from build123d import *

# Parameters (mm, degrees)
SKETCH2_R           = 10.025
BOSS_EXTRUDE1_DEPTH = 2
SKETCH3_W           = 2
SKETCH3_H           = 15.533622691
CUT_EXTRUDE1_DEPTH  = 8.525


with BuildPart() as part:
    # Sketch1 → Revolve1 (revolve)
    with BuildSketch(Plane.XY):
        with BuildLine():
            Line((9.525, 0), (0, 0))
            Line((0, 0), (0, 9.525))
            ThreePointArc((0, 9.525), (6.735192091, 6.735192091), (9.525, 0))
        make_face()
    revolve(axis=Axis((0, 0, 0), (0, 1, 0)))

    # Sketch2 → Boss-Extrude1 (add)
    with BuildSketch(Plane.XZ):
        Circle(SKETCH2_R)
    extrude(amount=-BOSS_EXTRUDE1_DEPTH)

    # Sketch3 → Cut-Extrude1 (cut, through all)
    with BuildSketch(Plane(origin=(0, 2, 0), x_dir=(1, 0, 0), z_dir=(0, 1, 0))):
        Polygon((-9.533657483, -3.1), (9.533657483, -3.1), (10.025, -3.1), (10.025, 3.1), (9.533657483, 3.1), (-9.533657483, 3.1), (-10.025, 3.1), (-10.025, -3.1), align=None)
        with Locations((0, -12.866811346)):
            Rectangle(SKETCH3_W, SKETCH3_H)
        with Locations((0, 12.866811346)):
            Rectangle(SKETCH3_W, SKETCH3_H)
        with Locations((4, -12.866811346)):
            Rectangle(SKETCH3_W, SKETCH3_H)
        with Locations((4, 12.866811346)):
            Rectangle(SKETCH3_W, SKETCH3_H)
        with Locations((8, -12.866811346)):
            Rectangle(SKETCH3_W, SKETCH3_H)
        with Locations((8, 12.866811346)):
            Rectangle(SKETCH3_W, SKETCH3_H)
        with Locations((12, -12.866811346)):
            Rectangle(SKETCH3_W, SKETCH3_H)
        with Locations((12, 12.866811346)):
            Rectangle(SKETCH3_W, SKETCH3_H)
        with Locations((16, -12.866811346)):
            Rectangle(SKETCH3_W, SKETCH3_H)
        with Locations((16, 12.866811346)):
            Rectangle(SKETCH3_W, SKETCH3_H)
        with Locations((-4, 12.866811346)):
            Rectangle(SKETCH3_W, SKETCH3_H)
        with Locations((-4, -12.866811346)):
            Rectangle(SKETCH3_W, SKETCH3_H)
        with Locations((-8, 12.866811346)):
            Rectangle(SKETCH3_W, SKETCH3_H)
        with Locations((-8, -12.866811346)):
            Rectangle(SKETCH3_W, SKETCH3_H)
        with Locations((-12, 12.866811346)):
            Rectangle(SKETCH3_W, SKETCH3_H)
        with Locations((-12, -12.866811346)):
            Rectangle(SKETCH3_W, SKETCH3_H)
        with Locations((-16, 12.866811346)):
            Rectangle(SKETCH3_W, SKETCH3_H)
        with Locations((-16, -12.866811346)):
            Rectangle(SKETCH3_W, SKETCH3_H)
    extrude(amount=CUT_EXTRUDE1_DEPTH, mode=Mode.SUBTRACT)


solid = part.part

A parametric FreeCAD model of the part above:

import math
import FreeCAD as App
import Part
import Sketcher
from FreeCAD import Vector
Q = App.Units.Quantity


def add_polygon(sketch, points):
    """Adds a closed chain of lines whose ends are joined by coincident constraints."""
    first, n = sketch.GeometryCount, len(points)
    for a, b in zip(points, points[1:] + points[:1]):
        sketch.addGeometry(Part.LineSegment(App.Vector(*a, 0), App.Vector(*b, 0)), False)
    for i in range(n):
        sketch.addConstraint(Sketcher.Constraint("Coincident", first + i, 2, first + (i + 1) % n, 1))

doc = App.newDocument("Part")
body = doc.addObject("PartDesign::Body", "Body")

# Sketch on XY plane
sketch1 = body.newObject("Sketcher::SketchObject", "Sketch")
sketch1.AttachmentSupport = (doc.getObject("XY_Plane"), [""])
sketch1.MapMode = "FlatFace"
sketch1.addGeometry([
    Part.LineSegment(Vector(0, 0, 0), Vector(10, 0, 0)),
    Part.ArcOfCircle(Part.Circle(Vector(0, 0, 0), Vector(0, 0, 1), 10), math.radians(0), math.radians(90)),
    Part.LineSegment(Vector(0, 10, 0), Vector(0, 0, 0)),
], False)
sketch1.addConstraint([
    Sketcher.Constraint("Coincident", 0, 2, 1, 1),
    Sketcher.Constraint("Coincident", 1, 2, 2, 1),
    Sketcher.Constraint("Coincident", 2, 2, 0, 1),
    Sketcher.Constraint("Horizontal", 0),
    Sketcher.Constraint("Vertical", 2),
    Sketcher.Constraint("Coincident", 1, 3, -1, 1),
    Sketcher.Constraint("Coincident", 2, 2, -1, 1),
    Sketcher.Constraint("Radius", 1, Q("9.525 mm")),
])
revolution = body.newObject("PartDesign::Revolution", "Revolution")
revolution.Profile = sketch1
revolution.ReferenceAxis = (sketch1, ["V_Axis"])
revolution.Angle = 360

# Sketch on XZ plane
sketch2 = body.newObject("Sketcher::SketchObject", "Sketch001")
sketch2.AttachmentSupport = (doc.getObject("XZ_Plane"), [""])
sketch2.MapMode = "FlatFace"
sketch2.addGeometry(Part.Circle(Vector(0, 0, 0), Vector(0, 0, 1), 10), False)
sketch2.addConstraint([
    Sketcher.Constraint("Coincident", 0, 3, -1, 1),
    Sketcher.Constraint("Diameter", 0, Q("20.05 mm")),
])
pad1 = body.newObject("PartDesign::Pad", "Pad")
pad1.Profile = sketch2
pad1.Length = 2
pad1.Reversed = True

# Sketch on XZ plane
sketch3 = body.newObject("Sketcher::SketchObject", "Sketch002")
sketch3.AttachmentSupport = (doc.getObject("XZ_Plane"), [""])
sketch3.MapMode = "FlatFace"
sketch3.AttachmentOffset = App.Placement(Vector(0, 0, -2), App.Rotation())
add_polygon(sketch3, [(10, 3.1), (10, -3.1), (-10, -3.1), (-10, 3.1)])  # lines 0-3
add_polygon(sketch3, [(-1, 5.1), (-1, 20.6), (1, 20.6), (1, 5.1)])  # lines 4-7
add_polygon(sketch3, [(-1, -20.6), (-1, -5.1), (1, -5.1), (1, -20.6)])  # lines 8-11
add_polygon(sketch3, [(3, 5.1), (3, 20.6), (5, 20.6), (5, 5.1)])  # lines 12-15
add_polygon(sketch3, [(3, -20.6), (3, -5.1), (5, -5.1), (5, -20.6)])  # lines 16-19
add_polygon(sketch3, [(7, 5.1), (7, 20.6), (9, 20.6), (9, 5.1)])  # lines 20-23
add_polygon(sketch3, [(7, -20.6), (7, -5.1), (9, -5.1), (9, -20.6)])  # lines 24-27
add_polygon(sketch3, [(11, 5.1), (11, 20.6), (13, 20.6), (13, 5.1)])  # lines 28-31
add_polygon(sketch3, [(11, -20.6), (11, -5.1), (13, -5.1), (13, -20.6)])  # lines 32-35
add_polygon(sketch3, [(15, 5.1), (15, 20.6), (17, 20.6), (17, 5.1)])  # lines 36-39
add_polygon(sketch3, [(15, -20.6), (15, -5.1), (17, -5.1), (17, -20.6)])  # lines 40-43
add_polygon(sketch3, [(-5, -20.6), (-5, -5.1), (-3, -5.1), (-3, -20.6)])  # lines 44-47
add_polygon(sketch3, [(-5, 5.1), (-5, 20.6), (-3, 20.6), (-3, 5.1)])  # lines 48-51
add_polygon(sketch3, [(-9, -20.6), (-9, -5.1), (-7, -5.1), (-7, -20.6)])  # lines 52-55
add_polygon(sketch3, [(-9, 5.1), (-9, 20.6), (-7, 20.6), (-7, 5.1)])  # lines 56-59
add_polygon(sketch3, [(-13, -20.6), (-13, -5.1), (-11, -5.1), (-11, -20.6)])  # lines 60-63
add_polygon(sketch3, [(-13, 5.1), (-13, 20.6), (-11, 20.6), (-11, 5.1)])  # lines 64-67
add_polygon(sketch3, [(-17, -20.6), (-17, -5.1), (-15, -5.1), (-15, -20.6)])  # lines 68-71
add_polygon(sketch3, [(-17, 5.1), (-17, 20.6), (-15, 20.6), (-15, 5.1)])  # lines 72-75
sketch3.addConstraint([
    Sketcher.Constraint("Vertical", 0),
    Sketcher.Constraint("Horizontal", 1),
    Sketcher.Constraint("Vertical", 2),
    Sketcher.Constraint("Horizontal", 3),
    Sketcher.Constraint("Vertical", 4),
    Sketcher.Constraint("Horizontal", 5),
    Sketcher.Constraint("Vertical", 6),
    Sketcher.Constraint("Horizontal", 7),
    Sketcher.Constraint("Vertical", 8),
    Sketcher.Constraint("Horizontal", 9),
    Sketcher.Constraint("Vertical", 10),
    Sketcher.Constraint("Horizontal", 11),
    Sketcher.Constraint("Vertical", 12),
    Sketcher.Constraint("Horizontal", 13),
    Sketcher.Constraint("Vertical", 14),
    Sketcher.Constraint("Horizontal", 15),
    Sketcher.Constraint("Vertical", 16),
    Sketcher.Constraint("Horizontal", 17),
    Sketcher.Constraint("Vertical", 18),
    Sketcher.Constraint("Horizontal", 19),
    Sketcher.Constraint("Vertical", 20),
    Sketcher.Constraint("Horizontal", 21),
    Sketcher.Constraint("Vertical", 22),
    Sketcher.Constraint("Horizontal", 23),
    Sketcher.Constraint("Vertical", 24),
    Sketcher.Constraint("Horizontal", 25),
    Sketcher.Constraint("Vertical", 26),
    Sketcher.Constraint("Horizontal", 27),
    Sketcher.Constraint("Vertical", 28),
    Sketcher.Constraint("Horizontal", 29),
    Sketcher.Constraint("Vertical", 30),
    Sketcher.Constraint("Horizontal", 31),
    Sketcher.Constraint("Vertical", 32),
    Sketcher.Constraint("Horizontal", 33),
    Sketcher.Constraint("Vertical", 34),
    Sketcher.Constraint("Horizontal", 35),
    Sketcher.Constraint("Vertical", 36),
    Sketcher.Constraint("Horizontal", 37),
    Sketcher.Constraint("Vertical", 38),
    Sketcher.Constraint("Horizontal", 39),
    Sketcher.Constraint("Vertical", 40),
    Sketcher.Constraint("Horizontal", 41),
    Sketcher.Constraint("Vertical", 42),
    Sketcher.Constraint("Horizontal", 43),
    Sketcher.Constraint("Vertical", 44),
    Sketcher.Constraint("Horizontal", 45),
    Sketcher.Constraint("Vertical", 46),
    Sketcher.Constraint("Horizontal", 47),
    Sketcher.Constraint("Vertical", 48),
    Sketcher.Constraint("Horizontal", 49),
    Sketcher.Constraint("Vertical", 50),
    Sketcher.Constraint("Horizontal", 51),
    Sketcher.Constraint("Vertical", 52),
    Sketcher.Constraint("Horizontal", 53),
    Sketcher.Constraint("Vertical", 54),
    Sketcher.Constraint("Horizontal", 55),
    Sketcher.Constraint("Vertical", 56),
    Sketcher.Constraint("Horizontal", 57),
    Sketcher.Constraint("Vertical", 58),
    Sketcher.Constraint("Horizontal", 59),
    Sketcher.Constraint("Vertical", 60),
    Sketcher.Constraint("Horizontal", 61),
    Sketcher.Constraint("Vertical", 62),
    Sketcher.Constraint("Horizontal", 63),
    Sketcher.Constraint("Vertical", 64),
    Sketcher.Constraint("Horizontal", 65),
    Sketcher.Constraint("Vertical", 66),
    Sketcher.Constraint("Horizontal", 67),
    Sketcher.Constraint("Vertical", 68),
    Sketcher.Constraint("Horizontal", 69),
    Sketcher.Constraint("Vertical", 70),
    Sketcher.Constraint("Horizontal", 71),
    Sketcher.Constraint("Vertical", 72),
    Sketcher.Constraint("Horizontal", 73),
    Sketcher.Constraint("Vertical", 74),
    Sketcher.Constraint("Horizontal", 75),
    Sketcher.Constraint("Symmetric", 0, 2, 2, 2, -1, 1),
    Sketcher.Constraint("Symmetric", 6, 2, 8, 2, -1, 1),
    Sketcher.Constraint("Symmetric", 4, 2, 10, 2, -1, 1),
    Sketcher.Constraint("Symmetric", 14, 2, 44, 2, -1, 1),
    Sketcher.Constraint("Symmetric", 12, 2, 46, 2, -1, 1),
    Sketcher.Constraint("Symmetric", 18, 2, 48, 2, -1, 1),
    Sketcher.Constraint("Symmetric", 16, 2, 50, 2, -1, 1),
    Sketcher.Constraint("Symmetric", 22, 2, 52, 2, -1, 1),
    Sketcher.Constraint("Symmetric", 20, 2, 54, 2, -1, 1),
    Sketcher.Constraint("Symmetric", 26, 2, 56, 2, -1, 1),
    Sketcher.Constraint("Symmetric", 24, 2, 58, 2, -1, 1),
    Sketcher.Constraint("Symmetric", 30, 2, 60, 2, -1, 1),
    Sketcher.Constraint("Symmetric", 28, 2, 62, 2, -1, 1),
    Sketcher.Constraint("Symmetric", 34, 2, 64, 2, -1, 1),
    Sketcher.Constraint("Symmetric", 32, 2, 66, 2, -1, 1),
    Sketcher.Constraint("Symmetric", 38, 2, 68, 2, -1, 1),
    Sketcher.Constraint("Symmetric", 36, 2, 70, 2, -1, 1),
    Sketcher.Constraint("Symmetric", 42, 2, 72, 2, -1, 1),
    Sketcher.Constraint("Symmetric", 40, 2, 74, 2, -1, 1),
    Sketcher.Constraint("Symmetric", 17, 2, 44, 2, -2),
    Sketcher.Constraint("Symmetric", 19, 2, 46, 2, -2),
    Sketcher.Constraint("Symmetric", 25, 2, 52, 2, -2),
    Sketcher.Constraint("Symmetric", 27, 2, 54, 2, -2),
    Sketcher.Constraint("Symmetric", 33, 2, 60, 2, -2),
    Sketcher.Constraint("Symmetric", 35, 2, 62, 2, -2),
    Sketcher.Constraint("Symmetric", 41, 2, 68, 2, -2),
    Sketcher.Constraint("Symmetric", 43, 2, 70, 2, -2),
    Sketcher.Constraint("Horizontal", 5, 2, 12, 2),
    Sketcher.Constraint("Horizontal", 7, 2, 14, 2),
    Sketcher.Constraint("Horizontal", 13, 2, 20, 2),
    Sketcher.Constraint("Horizontal", 15, 2, 22, 2),
    Sketcher.Constraint("Horizontal", 21, 2, 28, 2),
    Sketcher.Constraint("Horizontal", 23, 2, 30, 2),
    Sketcher.Constraint("Horizontal", 29, 2, 36, 2),
    Sketcher.Constraint("Horizontal", 31, 2, 38, 2),
    Sketcher.Constraint("Vertical", 7, 2, 8, 2),
    Sketcher.Constraint("Equal", 11, 13),
    Sketcher.Constraint("Equal", 19, 21),
    Sketcher.Constraint("Equal", 27, 29),
    Sketcher.Constraint("Equal", 35, 37),
    Sketcher.Constraint("DistanceX", 5, 1, 5, 2, Q("2 mm")),
    Sketcher.Constraint("DistanceY", 0, 2, 0, 1, Q("6.2 mm")),
    Sketcher.Constraint("DistanceX", -1, 1, 12, 2, Q("3 mm")),
    Sketcher.Constraint("DistanceX", -1, 1, 20, 2, Q("7 mm")),
    Sketcher.Constraint("DistanceX", -1, 1, 28, 2, Q("11 mm")),
    Sketcher.Constraint("DistanceX", -1, 1, 36, 2, Q("15 mm")),
    Sketcher.Constraint("DistanceX", 1, 2, 1, 1, Q("20.05 mm")),
    Sketcher.Constraint("DistanceY", -1, 1, 6, 2, Q("5.1 mm")),
    Sketcher.Constraint("DistanceY", 4, 1, 4, 2, Q("15.533623 mm")),
])
pocket1 = body.newObject("PartDesign::Pocket", "Pocket")
pocket1.Profile = sketch3
pocket1.Type = "ThroughAll"

doc.recompute()
